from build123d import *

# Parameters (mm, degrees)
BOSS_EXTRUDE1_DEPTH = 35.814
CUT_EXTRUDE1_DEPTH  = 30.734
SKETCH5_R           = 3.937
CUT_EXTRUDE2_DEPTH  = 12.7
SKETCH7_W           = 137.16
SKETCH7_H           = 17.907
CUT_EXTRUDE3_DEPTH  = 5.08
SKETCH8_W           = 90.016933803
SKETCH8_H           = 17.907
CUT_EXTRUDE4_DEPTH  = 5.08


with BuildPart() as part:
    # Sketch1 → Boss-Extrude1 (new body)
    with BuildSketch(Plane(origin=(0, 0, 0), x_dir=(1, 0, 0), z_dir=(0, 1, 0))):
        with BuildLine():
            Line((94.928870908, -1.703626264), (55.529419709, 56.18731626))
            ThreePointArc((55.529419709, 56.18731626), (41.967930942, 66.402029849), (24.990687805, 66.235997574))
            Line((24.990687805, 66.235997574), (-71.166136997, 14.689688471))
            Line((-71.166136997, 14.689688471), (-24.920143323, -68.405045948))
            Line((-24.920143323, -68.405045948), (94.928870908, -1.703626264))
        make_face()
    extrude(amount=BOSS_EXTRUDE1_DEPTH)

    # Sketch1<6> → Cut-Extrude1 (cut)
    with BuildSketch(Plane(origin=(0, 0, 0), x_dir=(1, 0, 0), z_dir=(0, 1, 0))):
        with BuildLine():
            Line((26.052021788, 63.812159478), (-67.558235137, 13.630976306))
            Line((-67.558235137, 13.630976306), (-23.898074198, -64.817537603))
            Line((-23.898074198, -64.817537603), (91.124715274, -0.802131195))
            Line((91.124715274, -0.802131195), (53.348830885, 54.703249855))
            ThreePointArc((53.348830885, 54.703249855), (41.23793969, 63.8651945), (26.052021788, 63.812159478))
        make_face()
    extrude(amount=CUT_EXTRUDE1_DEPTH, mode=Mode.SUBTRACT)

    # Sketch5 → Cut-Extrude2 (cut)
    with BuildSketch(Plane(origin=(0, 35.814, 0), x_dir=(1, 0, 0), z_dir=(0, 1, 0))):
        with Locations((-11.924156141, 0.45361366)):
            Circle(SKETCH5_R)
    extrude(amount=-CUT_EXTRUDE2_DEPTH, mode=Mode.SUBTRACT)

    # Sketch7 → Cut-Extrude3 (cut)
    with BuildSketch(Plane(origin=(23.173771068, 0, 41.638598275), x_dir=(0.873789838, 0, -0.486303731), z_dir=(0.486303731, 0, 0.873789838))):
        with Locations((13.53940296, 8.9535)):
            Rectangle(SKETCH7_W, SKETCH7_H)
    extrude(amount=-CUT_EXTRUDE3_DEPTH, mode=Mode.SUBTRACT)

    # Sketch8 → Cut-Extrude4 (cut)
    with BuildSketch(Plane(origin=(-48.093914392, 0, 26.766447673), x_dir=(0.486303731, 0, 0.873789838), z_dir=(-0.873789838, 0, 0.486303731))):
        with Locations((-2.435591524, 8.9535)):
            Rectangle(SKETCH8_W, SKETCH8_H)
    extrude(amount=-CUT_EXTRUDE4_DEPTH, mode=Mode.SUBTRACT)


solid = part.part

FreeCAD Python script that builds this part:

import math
import FreeCAD as App
import Part
import Sketcher
from FreeCAD import Vector
Q = App.Units.Quantity

doc = App.newDocument("Part")
params = doc.addObject("Spreadsheet::Sheet", "Params")
for row, (alias, value) in enumerate([
    ("sketch1_length", "5.4 in"),
    ("pad1_length", "1.41 in"),
    ("pocket1_length", "1.21 in"),
    ("sketch3_diameter", "0.31 in"),
    ("pocket2_length", "0.5 in"),
    ("sketch4_width", "5.4 in"),
    ("sketch4_height", "0.705 in"),
    ("pocket3_length", "0.2 in"),
    ("sketch5_height", "0.705 in"),
    ("pocket4_length", "0.2 in"),
], start=1):
    params.set(f"A{row}", alias)
    params.set(f"B{row}", "=" + value)
    params.setAlias(f"B{row}", alias)

body = doc.addObject("PartDesign::Body", "Body")

# Sketch on XZ plane
sketch1 = doc.addObject("Sketcher::SketchObject", "Sketch")
body.addObject(sketch1)
sketch1.AttachmentSupport = (doc.XZ_Plane, [""])
sketch1.MapMode = "FlatFace"
sketch1.addGeometry([
    Part.LineSegment(Vector(95, 2, 0), Vector(56, -56, 0)),  # 0
    Part.ArcOfCircle(Part.Circle(Vector(34, -41, 0), Vector(0, 0, 1), 26), math.radians(-109), math.radians(-34)),  # 1
    Part.LineSegment(Vector(25, -66, 0), Vector(-71, -15, 0)),  # 2
    Part.LineSegment(Vector(-71, -15, 0), Vector(-25, 68, 0)),  # 3
    Part.LineSegment(Vector(-25, 68, 0), Vector(95, 2, 0)),  # 4
], False)
sketch1.addConstraint([
    Sketcher.Constraint("Tangent", 0, 2, 1, 2),
    Sketcher.Constraint("Coincident", 1, 1, 2, 1),
    Sketcher.Constraint("Coincident", 2, 2, 3, 1),
    Sketcher.Constraint("Coincident", 3, 2, 4, 1),
    Sketcher.Constraint("Coincident", 4, 2, 0, 1),
    Sketcher.Constraint("Perpendicular", 3, 4),
    Sketcher.Constraint("Distance", 4, Q("5.4 in")),
    Sketcher.Constraint("Radius", 1, Q("26.376923 mm")),
    Sketcher.Constraint("DistanceY", 1, 3, 3, 2, Q("109.751698 mm")),
    Sketcher.Constraint("Distance", 2, Q("109.10159 mm")),
    Sketcher.Constraint("DistanceX", -1, 1, 1, 3, Q("33.723531 mm")),
    Sketcher.Constraint("DistanceX", -1, 1, 0, 2, Q("55.52942 mm")),
    Sketcher.Constraint("DistanceY", 2, 2, -1, 1, Q("14.689688 mm")),
    Sketcher.Constraint("DistanceX", -1, 1, 4, 2, Q("94.928871 mm")),
    Sketcher.Constraint("DistanceX", 2, 2, 1, 3, Q("104.889668 mm")),
])
sketch1.setExpression("Constraints[6]", "Params.sketch1_length")
pad1 = doc.addObject("PartDesign::Pad", "Pad")
body.addObject(pad1)
pad1.Profile = sketch1
pad1.setExpression("Length", "Params.pad1_length")
pad1.Reversed = True

# Sketch on XZ plane
sketch2 = doc.addObject("Sketcher::SketchObject", "Sketch001")
body.addObject(sketch2)
sketch2.AttachmentSupport = (doc.XZ_Plane, [""])
sketch2.MapMode = "FlatFace"
sketch2.addGeometry([
    Part.LineSegment(Vector(26, -64, 0), Vector(-68, -14, 0)),  # 0
    Part.LineSegment(Vector(-68, -14, 0), Vector(-24, 65, 0)),  # 1
    Part.LineSegment(Vector(-24, 65, 0), Vector(91, 1, 0)),  # 2
    Part.LineSegment(Vector(91, 1, 0), Vector(53, -55, 0)),  # 3
    Part.ArcOfCircle(Part.Circle(Vector(34, -41, 0), Vector(0, 0, 1), 24), math.radians(-109), math.radians(-34)),  # 4
], False)
sketch2.addConstraint([
    Sketcher.Constraint("Coincident", 0, 2, 1, 1),
    Sketcher.Constraint("Coincident", 1, 2, 2, 1),
    Sketcher.Constraint("Coincident", 2, 2, 3, 1),
    Sketcher.Constraint("Tangent", 3, 2, 4, 2),
    Sketcher.Constraint("Coincident", 4, 1, 0, 1),
    Sketcher.Constraint("Perpendicular", 1, 2),
    Sketcher.Constraint("Radius", 4, Q("23.739231 mm")),
    Sketcher.Constraint("Distance", 0, Q("106.2122 mm")),
    Sketcher.Constraint("DistanceX", 4, 3, 3, 2, Q("19.625299 mm")),
    Sketcher.Constraint("DistanceX", -1, 1, 4, 3, Q("33.723531 mm")),
    Sketcher.Constraint("DistanceY", -1, 1, 2, 2, Q("0.802131 mm")),
    Sketcher.Constraint("DistanceY", 3, 2, -1, 1, Q("54.70325 mm")),
    Sketcher.Constraint("DistanceX", -1, 1, 4, 1, Q("26.052022 mm")),
    Sketcher.Constraint("DistanceX", 0, 2, 1, 2, Q("43.660161 mm")),
    Sketcher.Constraint("DistanceY", 4, 3, 1, 2, Q("106.16419 mm")),
])
pocket1 = doc.addObject("PartDesign::Pocket", "Pocket")
body.addObject(pocket1)
pocket1.Profile = sketch2
pocket1.setExpression("Length", "Params.pocket1_length")

# Sketch on XZ plane
sketch3 = doc.addObject("Sketcher::SketchObject", "Sketch002")
body.addObject(sketch3)
sketch3.AttachmentSupport = (doc.XZ_Plane, [""])
sketch3.MapMode = "FlatFace"
sketch3.AttachmentOffset = App.Placement(Vector(0, 0, -1.41 * 25.4), App.Rotation())
sketch3.addGeometry(Part.Circle(Vector(-11.9, -0.5, 0), Vector(0, 0, 1), 3.9), False)
sketch3.addConstraint([
    Sketcher.Constraint("Diameter", 0, Q("0.31 in")),
    Sketcher.Constraint("DistanceX", 0, 3, -1, 1, Q("11.924156 mm")),
    Sketcher.Constraint("DistanceY", 0, 3, -1, 1, Q("0.453614 mm")),
])
sketch3.setExpression("Constraints[0]", "Params.sketch3_diameter")
pocket2 = doc.addObject("PartDesign::Pocket", "Pocket001")
body.addObject(pocket2)
pocket2.Profile = sketch3
pocket2.setExpression("Length", "Params.pocket2_length")
pocket2.Reversed = True

# Sketch on an angled plane
sketch4 = doc.addObject("Sketcher::SketchObject", "Sketch003")
body.addObject(sketch4)
sketch4.Placement = App.Placement(Vector(23.173771, 0, 41.638598), App.Rotation(Vector(0.873789838, 0, -0.486303731), Vector(0, 1, 0), Vector(0.486303731, 0, 0.873789838), "ZXY"))
sketch4.addGeometry([
    Part.LineSegment(Vector(-55, 18, 0), Vector(-55, 0, 0)),
    Part.LineSegment(Vector(-55, 0, 0), Vector(82, 0, 0)),
    Part.LineSegment(Vector(82, 0, 0), Vector(82, 18, 0)),
    Part.LineSegment(Vector(82, 18, 0), Vector(-55, 18, 0)),
], False)
sketch4.addConstraint([
    Sketcher.Constraint("Coincident", 0, 2, 1, 1),
    Sketcher.Constraint("Coincident", 1, 2, 2, 1),
    Sketcher.Constraint("Coincident", 2, 2, 3, 1),
    Sketcher.Constraint("Coincident", 3, 2, 0, 1),
    Sketcher.Constraint("Vertical", 0),
    Sketcher.Constraint("Horizontal", 1),
    Sketcher.Constraint("Vertical", 2),
    Sketcher.Constraint("Horizontal", 3),
    Sketcher.Constraint("PointOnObject", 0, 2, -1),
    Sketcher.Constraint("DistanceX", 1, 1, 1, 2, Q("5.4 in")),
    Sketcher.Constraint("DistanceY", 0, 2, 0, 1, Q("0.705 in")),
    Sketcher.Constraint("DistanceX", 0, 2, -1, 1, Q("55.040597 mm")),
])
sketch4.setExpression("Constraints[9]", "Params.sketch4_width")
sketch4.setExpression("Constraints[10]", "Params.sketch4_height")
pocket3 = doc.addObject("PartDesign::Pocket", "Pocket002")
body.addObject(pocket3)
pocket3.Profile = sketch4
pocket3.setExpression("Length", "Params.pocket3_length")

# Sketch on an angled plane
sketch5 = doc.addObject("Sketcher::SketchObject", "Sketch004")
body.addObject(sketch5)
sketch5.Placement = App.Placement(Vector(-48.093914, 0, 26.766448), App.Rotation(Vector(0.486303731, 0, 0.873789838), Vector(0, 1, 0), Vector(-0.873789838, 0, 0.486303731), "ZXY"))
sketch5.addGeometry([
    Part.LineSegment(Vector(-47, 18, 0), Vector(-47, 0, 0)),
    Part.LineSegment(Vector(-47, 0, 0), Vector(43, 0, 0)),
    Part.LineSegment(Vector(43, 0, 0), Vector(43, 18, 0)),
    Part.LineSegment(Vector(43, 18, 0), Vector(-47, 18, 0)),
], False)
sketch5.addConstraint([
    Sketcher.Constraint("Coincident", 0, 2, 1, 1),
    Sketcher.Constraint("Coincident", 1, 2, 2, 1),
    Sketcher.Constraint("Coincident", 2, 2, 3, 1),
    Sketcher.Constraint("Coincident", 3, 2, 0, 1),
    Sketcher.Constraint("Vertical", 0),
    Sketcher.Constraint("Horizontal", 1),
    Sketcher.Constraint("Vertical", 2),
    Sketcher.Constraint("Horizontal", 3),
    Sketcher.Constraint("PointOnObject", 0, 2, -1),
    Sketcher.Constraint("DistanceY", 0, 2, 0, 1, Q("0.705 in")),
    Sketcher.Constraint("DistanceX", 1, 1, 1, 2, Q("90.016934 mm")),
    Sketcher.Constraint("DistanceX", 0, 2, -1, 1, Q("47.444058 mm")),
])
sketch5.setExpression("Constraints[9]", "Params.sketch5_height")
pocket4 = doc.addObject("PartDesign::Pocket", "Pocket003")
body.addObject(pocket4)
pocket4.Profile = sketch5
pocket4.setExpression("Length", "Params.pocket4_length")

doc.recompute()
